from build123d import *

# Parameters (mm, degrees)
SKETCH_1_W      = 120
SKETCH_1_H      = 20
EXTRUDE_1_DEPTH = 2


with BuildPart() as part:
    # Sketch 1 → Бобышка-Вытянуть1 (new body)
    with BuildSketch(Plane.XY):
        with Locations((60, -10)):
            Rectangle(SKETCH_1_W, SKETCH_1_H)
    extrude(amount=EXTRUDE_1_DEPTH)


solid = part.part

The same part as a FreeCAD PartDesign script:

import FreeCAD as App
import Part
import Sketcher
from FreeCAD import Vector
Q = App.Units.Quantity


def add_polygon(sketch, points):
    """Adds a closed chain of lines whose ends are joined by coincident constraints."""
    first, n = sketch.GeometryCount, len(points)
    for a, b in zip(points, points[1:] + points[:1]):
        sketch.addGeometry(Part.LineSegment(App.Vector(*a, 0), App.Vector(*b, 0)), False)
    for i in range(n):
        sketch.addConstraint(Sketcher.Constraint("Coincident", first + i, 2, first + (i + 1) % n, 1))

doc = App.newDocument("Part")
body = doc.addObject("PartDesign::Body", "Body")

# Sketch on XY plane
sketch1 = body.newObject("Sketcher::SketchObject", "Sketch")
sketch1.AttachmentSupport = (doc.getObject("XY_Plane"), [""])
sketch1.MapMode = "FlatFace"
add_polygon(sketch1, [(0, 0), (0, -20), (120, -20), (120, 0)])  # lines 0-3
sketch1.addConstraint(Sketcher.Constraint("Vertical", 0))
sketch1.addConstraint(Sketcher.Constraint("Horizontal", 1))
sketch1.addConstraint(Sketcher.Constraint("Vertical", 2))
sketch1.addConstraint(Sketcher.Constraint("Horizontal", 3))
sketch1.addConstraint(Sketcher.Constraint("Coincident", 3, 2, -1, 1))
sketch1.addConstraint(Sketcher.Constraint("DistanceX", 1, 1, 1, 2, Q("120 mm")))
sketch1.addConstraint(Sketcher.Constraint("DistanceY", 0, 2, 0, 1, Q("20 mm")))
pad1 = body.newObject("PartDesign::Pad", "Pad")
pad1.Profile = sketch1
pad1.Length = 2

doc.recompute()
